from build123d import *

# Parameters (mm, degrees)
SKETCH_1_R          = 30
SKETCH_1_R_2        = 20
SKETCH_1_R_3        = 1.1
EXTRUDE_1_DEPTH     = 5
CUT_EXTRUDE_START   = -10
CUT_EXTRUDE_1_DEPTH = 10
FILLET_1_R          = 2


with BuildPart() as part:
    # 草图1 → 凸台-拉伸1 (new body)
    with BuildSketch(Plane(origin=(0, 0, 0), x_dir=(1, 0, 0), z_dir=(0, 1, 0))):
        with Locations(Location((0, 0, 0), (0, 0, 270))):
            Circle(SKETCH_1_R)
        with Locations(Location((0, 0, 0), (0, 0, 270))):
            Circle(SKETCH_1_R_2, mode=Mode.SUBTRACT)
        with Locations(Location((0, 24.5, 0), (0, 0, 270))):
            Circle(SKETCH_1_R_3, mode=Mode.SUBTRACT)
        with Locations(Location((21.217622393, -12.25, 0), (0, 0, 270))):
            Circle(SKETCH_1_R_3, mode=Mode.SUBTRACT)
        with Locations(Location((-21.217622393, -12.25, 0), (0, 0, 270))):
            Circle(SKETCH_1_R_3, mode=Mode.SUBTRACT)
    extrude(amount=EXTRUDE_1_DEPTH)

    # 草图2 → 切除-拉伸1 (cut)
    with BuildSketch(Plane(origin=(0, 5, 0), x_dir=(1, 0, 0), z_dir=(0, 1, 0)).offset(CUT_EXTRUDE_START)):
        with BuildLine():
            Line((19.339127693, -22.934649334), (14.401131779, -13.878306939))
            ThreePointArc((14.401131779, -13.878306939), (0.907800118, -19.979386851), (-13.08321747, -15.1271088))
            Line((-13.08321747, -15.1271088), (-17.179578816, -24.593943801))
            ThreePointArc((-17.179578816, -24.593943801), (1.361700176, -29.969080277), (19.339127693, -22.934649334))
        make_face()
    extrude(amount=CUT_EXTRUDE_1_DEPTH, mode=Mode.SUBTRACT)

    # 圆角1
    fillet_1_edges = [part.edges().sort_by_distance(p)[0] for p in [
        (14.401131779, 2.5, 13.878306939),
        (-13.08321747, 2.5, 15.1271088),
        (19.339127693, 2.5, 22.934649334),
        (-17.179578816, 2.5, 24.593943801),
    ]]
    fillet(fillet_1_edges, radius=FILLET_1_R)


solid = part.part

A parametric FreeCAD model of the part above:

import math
import FreeCAD as App
import Part
import Sketcher

V = App.Vector
Q = App.Units.Quantity


def edges_at(feature, points):
    """Names of the edges that pass closest to the given points."""
    edges = feature.Shape.Edges
    near = lambda p: min(range(len(edges)), key=lambda i: edges[i].distToShape(Part.Vertex(*p))[0])
    return sorted({f"Edge{near(p) + 1}" for p in points})

doc = App.newDocument("Part")
body = doc.addObject("PartDesign::Body", "Body")

# Sketch on XZ plane
sketch1 = doc.addObject("Sketcher::SketchObject", "Sketch")
body.addObject(sketch1)
sketch1.AttachmentSupport = (doc.XZ_Plane, [""])
sketch1.MapMode = "FlatFace"
sketch1.addGeometry(Part.Circle(V(0, 0, 0), V(0, 0, 1), 30), False)
sketch1.addGeometry(Part.Circle(V(0, -24.5, 0), V(0, 0, 1), 1.1), False)
sketch1.addGeometry(Part.Circle(V(-21.2, 12.2, 0), V(0, 0, 1), 1.1), False)
sketch1.addGeometry(Part.Circle(V(0, 0, 0), V(0, 0, 1), 20), False)
sketch1.addGeometry(Part.Circle(V(21.2, 12.2, 0), V(0, 0, 1), 1.1), False)
sketch1.addConstraint(Sketcher.Constraint("Coincident", 0, 3, -1, 1))
sketch1.addConstraint(Sketcher.Constraint("Coincident", 3, 3, -1, 1))
sketch1.addConstraint(Sketcher.Constraint("Equal", 1, 2))
sketch1.addConstraint(Sketcher.Constraint("Equal", 2, 4))
sketch1.addConstraint(Sketcher.Constraint("Symmetric", 2, 3, 4, 3, -2))
sketch1.addConstraint(Sketcher.Constraint("PointOnObject", 1, 3, -2))
sketch1.addConstraint(Sketcher.Constraint("Diameter", 0, Q("60 mm")))
sketch1.addConstraint(Sketcher.Constraint("Diameter", 3, Q("40 mm")))
sketch1.addConstraint(Sketcher.Constraint("Diameter", 1, Q("2.2 mm")))
sketch1.addConstraint(Sketcher.Constraint("DistanceY", 1, 3, -1, 1, Q("24.5 mm")))
sketch1.addConstraint(Sketcher.Constraint("DistanceY", -1, 1, 2, 3, Q("12.25 mm")))
sketch1.addConstraint(Sketcher.Constraint("DistanceX", 2, 3, -1, 1, Q("21.217622 mm")))
pad1 = doc.addObject("PartDesign::Pad", "Pad")
body.addObject(pad1)
pad1.Profile = sketch1
pad1.Length = 5
pad1.Reversed = True

# Sketch on XZ plane
sketch2 = doc.addObject("Sketcher::SketchObject", "Sketch001")
body.addObject(sketch2)
sketch2.AttachmentSupport = (doc.XZ_Plane, [""])
sketch2.MapMode = "FlatFace"
sketch2.AttachmentOffset = App.Placement(V(0, 0, 5), App.Rotation())
sketch2.addGeometry(Part.LineSegment(V(19, 23, 0), V(14, 14, 0)), False)
sketch2.addGeometry(Part.ArcOfCircle(Part.Circle(V(0, 0, 0), V(0, 0, 1), 20), math.radians(44), math.radians(131)), False)
sketch2.addGeometry(Part.LineSegment(V(-13, 15, 0), V(-17, 25, 0)), False)
sketch2.addGeometry(Part.ArcOfCircle(Part.Circle(V(0, 0, 0), V(0, 0, 1), 30), math.radians(50), math.radians(125)), False)
sketch2.addConstraint(Sketcher.Constraint("Coincident", 0, 2, 1, 1))
sketch2.addConstraint(Sketcher.Constraint("Coincident", 1, 2, 2, 1))
sketch2.addConstraint(Sketcher.Constraint("Coincident", 2, 2, 3, 2))
sketch2.addConstraint(Sketcher.Constraint("Coincident", 3, 1, 0, 1))
sketch2.addConstraint(Sketcher.Constraint("Coincident", 1, 3, -1, 1))
sketch2.addConstraint(Sketcher.Constraint("Coincident", 3, 3, -1, 1))
sketch2.addConstraint(Sketcher.Constraint("Equal", 0, 2))
sketch2.addConstraint(Sketcher.Constraint("Radius", 1, Q("20 mm")))
sketch2.addConstraint(Sketcher.Constraint("Radius", 3, Q("30 mm")))
sketch2.addConstraint(Sketcher.Constraint("DistanceY", 0, 2, 1, 2, Q("1.248802 mm")))
sketch2.addConstraint(Sketcher.Constraint("DistanceX", -1, 1, 0, 2, Q("14.401132 mm")))
sketch2.addConstraint(Sketcher.Constraint("DistanceX", 2, 2, -1, 1, Q("17.179579 mm")))
pocket1 = doc.addObject("PartDesign::Pocket", "Pocket")
body.addObject(pocket1)
pocket1.Profile = sketch2
pocket1.Length = 10
doc.recompute()

fillet = doc.addObject("PartDesign::Fillet", "Fillet")
body.addObject(fillet)
fillet.Base = (pocket1, edges_at(pocket1, [
    (14.401, 2.5, 13.878),
    (-13.083, 2.5, 15.127),
    (19.339, 2.5, 22.935),
    (-17.18, 2.5, 24.594),
]))
fillet.Radius = 2

doc.recompute()
